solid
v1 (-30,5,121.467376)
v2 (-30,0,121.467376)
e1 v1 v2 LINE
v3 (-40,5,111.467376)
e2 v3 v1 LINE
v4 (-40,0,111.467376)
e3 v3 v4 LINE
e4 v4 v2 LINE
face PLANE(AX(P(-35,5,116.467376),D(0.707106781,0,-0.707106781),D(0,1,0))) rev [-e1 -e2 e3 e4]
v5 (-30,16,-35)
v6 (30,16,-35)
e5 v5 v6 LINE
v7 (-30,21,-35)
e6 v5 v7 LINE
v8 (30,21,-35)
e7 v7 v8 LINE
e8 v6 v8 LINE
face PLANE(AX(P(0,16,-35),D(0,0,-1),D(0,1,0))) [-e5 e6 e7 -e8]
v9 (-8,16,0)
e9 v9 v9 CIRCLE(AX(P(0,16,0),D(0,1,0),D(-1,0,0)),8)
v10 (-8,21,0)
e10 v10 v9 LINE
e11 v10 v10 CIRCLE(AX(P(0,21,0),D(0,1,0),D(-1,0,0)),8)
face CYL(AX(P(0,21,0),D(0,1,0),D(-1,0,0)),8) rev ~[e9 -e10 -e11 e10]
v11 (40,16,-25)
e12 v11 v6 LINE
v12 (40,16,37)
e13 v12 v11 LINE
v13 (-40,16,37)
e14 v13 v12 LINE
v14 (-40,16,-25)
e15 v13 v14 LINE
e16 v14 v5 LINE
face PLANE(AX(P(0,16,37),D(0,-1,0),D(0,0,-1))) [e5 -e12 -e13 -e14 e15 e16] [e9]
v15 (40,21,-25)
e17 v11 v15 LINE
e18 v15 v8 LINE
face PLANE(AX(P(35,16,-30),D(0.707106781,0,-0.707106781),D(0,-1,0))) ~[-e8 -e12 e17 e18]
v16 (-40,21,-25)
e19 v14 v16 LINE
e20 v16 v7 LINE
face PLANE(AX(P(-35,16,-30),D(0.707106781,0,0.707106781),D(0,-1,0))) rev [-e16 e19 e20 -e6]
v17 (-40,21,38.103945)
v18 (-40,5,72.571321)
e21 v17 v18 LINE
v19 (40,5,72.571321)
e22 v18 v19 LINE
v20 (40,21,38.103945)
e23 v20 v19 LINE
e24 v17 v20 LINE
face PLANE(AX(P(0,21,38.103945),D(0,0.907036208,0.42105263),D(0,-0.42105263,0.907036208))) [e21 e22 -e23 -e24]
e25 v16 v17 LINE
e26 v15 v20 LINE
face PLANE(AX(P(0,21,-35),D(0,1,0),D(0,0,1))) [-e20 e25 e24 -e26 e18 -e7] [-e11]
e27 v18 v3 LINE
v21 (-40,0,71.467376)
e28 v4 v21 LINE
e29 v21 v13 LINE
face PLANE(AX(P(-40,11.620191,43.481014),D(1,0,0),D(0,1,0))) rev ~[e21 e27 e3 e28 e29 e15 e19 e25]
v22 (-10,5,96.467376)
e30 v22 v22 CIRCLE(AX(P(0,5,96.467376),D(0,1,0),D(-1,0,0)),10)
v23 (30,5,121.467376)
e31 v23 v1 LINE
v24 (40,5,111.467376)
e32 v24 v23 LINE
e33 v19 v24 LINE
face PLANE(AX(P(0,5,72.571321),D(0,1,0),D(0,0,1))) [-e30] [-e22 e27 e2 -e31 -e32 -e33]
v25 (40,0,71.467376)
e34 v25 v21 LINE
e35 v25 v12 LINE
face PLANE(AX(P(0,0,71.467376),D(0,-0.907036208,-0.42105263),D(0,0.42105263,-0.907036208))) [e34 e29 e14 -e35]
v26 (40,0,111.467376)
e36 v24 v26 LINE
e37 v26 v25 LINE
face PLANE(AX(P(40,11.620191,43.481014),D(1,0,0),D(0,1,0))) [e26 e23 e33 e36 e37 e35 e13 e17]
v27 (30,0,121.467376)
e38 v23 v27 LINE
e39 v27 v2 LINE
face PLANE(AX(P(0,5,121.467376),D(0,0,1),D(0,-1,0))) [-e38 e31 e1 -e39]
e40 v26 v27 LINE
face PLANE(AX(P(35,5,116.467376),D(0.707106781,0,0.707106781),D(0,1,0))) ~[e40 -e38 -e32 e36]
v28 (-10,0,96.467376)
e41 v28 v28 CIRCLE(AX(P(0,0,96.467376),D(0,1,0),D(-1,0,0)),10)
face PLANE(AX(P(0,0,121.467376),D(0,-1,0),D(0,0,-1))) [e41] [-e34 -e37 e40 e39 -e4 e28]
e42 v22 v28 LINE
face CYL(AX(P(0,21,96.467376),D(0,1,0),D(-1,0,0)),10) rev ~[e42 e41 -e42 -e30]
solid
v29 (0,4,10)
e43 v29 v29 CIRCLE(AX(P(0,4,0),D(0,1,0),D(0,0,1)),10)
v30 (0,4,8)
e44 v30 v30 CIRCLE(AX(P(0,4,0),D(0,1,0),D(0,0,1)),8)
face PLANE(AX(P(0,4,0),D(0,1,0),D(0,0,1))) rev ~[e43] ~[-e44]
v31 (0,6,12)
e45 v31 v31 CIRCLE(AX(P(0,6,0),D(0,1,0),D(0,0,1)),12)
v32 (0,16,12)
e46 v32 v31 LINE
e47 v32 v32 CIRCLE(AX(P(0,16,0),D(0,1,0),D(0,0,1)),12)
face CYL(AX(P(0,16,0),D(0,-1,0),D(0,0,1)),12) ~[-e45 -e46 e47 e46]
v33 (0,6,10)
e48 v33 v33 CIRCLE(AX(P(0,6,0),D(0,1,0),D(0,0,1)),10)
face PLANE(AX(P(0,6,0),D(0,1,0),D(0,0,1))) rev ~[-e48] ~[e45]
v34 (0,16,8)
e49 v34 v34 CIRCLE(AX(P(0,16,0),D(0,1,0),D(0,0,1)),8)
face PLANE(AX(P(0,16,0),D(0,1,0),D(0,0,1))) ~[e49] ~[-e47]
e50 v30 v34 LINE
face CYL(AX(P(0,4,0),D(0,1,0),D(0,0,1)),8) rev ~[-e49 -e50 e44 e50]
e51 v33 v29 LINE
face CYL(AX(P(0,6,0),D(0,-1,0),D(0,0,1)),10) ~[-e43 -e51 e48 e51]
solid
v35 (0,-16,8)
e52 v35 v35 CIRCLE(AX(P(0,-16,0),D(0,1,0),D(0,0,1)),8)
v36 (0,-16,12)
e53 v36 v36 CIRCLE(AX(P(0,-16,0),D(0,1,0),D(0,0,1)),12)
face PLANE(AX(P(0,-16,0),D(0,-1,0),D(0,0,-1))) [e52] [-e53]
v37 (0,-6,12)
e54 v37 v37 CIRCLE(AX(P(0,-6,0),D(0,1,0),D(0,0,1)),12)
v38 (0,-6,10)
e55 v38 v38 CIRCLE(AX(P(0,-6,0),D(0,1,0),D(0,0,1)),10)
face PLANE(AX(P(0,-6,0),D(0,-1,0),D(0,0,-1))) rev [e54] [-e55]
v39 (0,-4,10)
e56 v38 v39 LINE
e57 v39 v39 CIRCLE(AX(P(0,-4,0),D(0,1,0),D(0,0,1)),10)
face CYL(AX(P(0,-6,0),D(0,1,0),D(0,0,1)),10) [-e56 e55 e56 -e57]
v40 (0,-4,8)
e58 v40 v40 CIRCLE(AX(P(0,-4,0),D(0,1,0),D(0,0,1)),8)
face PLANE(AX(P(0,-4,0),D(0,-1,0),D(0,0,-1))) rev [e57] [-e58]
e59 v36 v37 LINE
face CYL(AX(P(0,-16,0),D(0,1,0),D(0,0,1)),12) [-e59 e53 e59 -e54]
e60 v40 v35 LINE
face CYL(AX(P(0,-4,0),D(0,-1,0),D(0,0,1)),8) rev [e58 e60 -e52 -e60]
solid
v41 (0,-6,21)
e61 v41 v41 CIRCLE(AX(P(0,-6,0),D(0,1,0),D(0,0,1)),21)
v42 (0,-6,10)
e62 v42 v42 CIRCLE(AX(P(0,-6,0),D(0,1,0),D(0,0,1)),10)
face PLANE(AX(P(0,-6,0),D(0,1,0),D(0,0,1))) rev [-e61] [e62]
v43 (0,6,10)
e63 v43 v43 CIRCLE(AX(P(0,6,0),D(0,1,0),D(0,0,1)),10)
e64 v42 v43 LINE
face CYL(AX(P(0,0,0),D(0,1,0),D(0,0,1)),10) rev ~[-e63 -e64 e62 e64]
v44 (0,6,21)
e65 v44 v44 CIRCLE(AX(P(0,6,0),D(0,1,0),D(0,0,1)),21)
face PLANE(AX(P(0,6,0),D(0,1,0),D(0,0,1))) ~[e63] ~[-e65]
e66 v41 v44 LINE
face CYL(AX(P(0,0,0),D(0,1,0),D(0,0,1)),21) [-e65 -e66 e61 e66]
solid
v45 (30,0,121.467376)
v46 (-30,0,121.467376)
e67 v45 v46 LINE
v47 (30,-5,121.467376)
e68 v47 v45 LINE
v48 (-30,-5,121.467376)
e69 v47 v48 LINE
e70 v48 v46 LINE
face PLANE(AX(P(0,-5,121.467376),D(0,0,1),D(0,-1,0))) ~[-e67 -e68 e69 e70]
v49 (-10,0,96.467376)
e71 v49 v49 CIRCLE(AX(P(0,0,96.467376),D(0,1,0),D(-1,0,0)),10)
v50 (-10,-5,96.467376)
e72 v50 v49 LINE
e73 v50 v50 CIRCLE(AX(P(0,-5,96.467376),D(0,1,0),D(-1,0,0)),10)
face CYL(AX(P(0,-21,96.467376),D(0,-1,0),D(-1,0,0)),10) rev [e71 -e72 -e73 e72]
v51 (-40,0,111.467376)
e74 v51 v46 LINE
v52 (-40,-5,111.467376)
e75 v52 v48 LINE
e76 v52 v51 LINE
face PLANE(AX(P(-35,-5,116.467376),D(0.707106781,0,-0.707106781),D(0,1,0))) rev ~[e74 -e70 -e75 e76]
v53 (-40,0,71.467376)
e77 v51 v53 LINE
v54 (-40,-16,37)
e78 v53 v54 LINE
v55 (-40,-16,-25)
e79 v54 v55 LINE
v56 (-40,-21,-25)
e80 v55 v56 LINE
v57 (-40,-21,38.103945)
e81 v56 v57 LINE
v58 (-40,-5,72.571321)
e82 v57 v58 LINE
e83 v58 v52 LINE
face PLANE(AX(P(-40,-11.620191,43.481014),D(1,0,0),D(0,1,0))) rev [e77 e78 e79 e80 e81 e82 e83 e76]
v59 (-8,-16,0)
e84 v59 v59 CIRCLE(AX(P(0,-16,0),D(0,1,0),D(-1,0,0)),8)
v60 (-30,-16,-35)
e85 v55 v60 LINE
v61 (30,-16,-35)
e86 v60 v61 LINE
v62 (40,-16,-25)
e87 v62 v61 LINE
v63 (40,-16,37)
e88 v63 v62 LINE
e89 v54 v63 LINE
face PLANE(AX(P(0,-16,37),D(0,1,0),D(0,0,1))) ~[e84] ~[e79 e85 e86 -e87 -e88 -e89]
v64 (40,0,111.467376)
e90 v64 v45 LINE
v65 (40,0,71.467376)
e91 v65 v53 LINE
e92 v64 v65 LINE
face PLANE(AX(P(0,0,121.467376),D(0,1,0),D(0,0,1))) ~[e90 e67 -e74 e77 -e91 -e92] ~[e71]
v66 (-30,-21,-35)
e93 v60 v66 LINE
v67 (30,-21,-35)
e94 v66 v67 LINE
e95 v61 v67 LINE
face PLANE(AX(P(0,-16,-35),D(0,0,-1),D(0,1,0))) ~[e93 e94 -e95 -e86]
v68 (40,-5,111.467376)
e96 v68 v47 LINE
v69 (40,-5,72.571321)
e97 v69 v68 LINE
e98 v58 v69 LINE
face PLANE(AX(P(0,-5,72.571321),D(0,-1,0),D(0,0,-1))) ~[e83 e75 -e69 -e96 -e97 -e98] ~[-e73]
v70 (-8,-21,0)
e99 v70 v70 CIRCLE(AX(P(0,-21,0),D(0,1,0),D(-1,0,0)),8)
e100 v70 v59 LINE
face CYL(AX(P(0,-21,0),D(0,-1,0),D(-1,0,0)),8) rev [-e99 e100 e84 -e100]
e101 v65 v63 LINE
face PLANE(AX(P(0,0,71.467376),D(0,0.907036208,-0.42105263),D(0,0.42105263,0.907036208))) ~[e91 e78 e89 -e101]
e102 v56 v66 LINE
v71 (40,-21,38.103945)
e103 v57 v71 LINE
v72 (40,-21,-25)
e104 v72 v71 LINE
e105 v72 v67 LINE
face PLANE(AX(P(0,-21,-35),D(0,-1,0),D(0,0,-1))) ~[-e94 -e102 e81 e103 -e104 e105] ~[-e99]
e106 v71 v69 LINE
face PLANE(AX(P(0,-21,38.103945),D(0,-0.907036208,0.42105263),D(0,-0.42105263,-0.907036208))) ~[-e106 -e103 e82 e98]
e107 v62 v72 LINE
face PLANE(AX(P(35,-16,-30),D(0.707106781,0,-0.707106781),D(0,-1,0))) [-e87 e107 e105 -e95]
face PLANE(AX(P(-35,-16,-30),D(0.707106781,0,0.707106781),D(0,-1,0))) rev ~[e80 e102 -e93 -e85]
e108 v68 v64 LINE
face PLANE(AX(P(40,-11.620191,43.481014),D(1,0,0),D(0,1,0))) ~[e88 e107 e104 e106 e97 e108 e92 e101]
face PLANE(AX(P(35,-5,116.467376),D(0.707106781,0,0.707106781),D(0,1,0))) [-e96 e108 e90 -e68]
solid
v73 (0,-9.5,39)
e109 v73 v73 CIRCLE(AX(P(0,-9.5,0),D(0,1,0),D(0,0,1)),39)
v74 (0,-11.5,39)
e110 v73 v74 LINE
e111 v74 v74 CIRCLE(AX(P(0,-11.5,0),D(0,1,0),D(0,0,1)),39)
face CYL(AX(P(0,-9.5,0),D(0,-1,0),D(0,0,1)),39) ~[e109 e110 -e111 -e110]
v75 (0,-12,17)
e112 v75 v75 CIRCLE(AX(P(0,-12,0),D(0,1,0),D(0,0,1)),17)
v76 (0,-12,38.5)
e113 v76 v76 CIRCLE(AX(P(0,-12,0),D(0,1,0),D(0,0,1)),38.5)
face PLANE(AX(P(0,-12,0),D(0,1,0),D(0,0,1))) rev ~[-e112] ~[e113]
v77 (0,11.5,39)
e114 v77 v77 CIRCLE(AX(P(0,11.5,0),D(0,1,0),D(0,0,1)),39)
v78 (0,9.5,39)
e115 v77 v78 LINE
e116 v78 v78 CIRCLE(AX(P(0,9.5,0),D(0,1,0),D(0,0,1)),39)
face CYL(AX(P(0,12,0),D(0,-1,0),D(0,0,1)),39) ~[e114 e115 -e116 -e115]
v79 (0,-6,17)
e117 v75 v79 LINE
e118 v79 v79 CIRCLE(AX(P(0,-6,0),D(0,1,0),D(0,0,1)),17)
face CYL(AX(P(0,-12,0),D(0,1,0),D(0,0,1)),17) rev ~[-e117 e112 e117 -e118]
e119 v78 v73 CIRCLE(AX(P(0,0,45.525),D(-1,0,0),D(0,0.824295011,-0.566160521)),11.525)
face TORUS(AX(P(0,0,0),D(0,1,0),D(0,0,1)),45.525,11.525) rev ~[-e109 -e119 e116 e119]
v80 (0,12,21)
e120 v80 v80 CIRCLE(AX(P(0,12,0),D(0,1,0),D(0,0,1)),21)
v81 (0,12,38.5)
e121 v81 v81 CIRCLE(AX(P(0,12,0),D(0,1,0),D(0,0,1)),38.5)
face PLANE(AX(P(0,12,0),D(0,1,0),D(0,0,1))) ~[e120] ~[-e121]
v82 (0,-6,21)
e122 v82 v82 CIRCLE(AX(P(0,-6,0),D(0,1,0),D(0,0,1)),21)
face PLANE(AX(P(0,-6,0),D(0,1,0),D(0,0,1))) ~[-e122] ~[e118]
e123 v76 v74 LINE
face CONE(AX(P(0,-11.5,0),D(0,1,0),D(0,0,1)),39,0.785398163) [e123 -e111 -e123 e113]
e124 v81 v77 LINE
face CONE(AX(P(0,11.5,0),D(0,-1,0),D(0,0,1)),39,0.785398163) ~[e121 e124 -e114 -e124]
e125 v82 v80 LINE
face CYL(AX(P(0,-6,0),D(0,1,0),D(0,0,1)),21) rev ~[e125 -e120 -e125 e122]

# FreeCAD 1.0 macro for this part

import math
import FreeCAD as App
import Part
import Sketcher


def edges_at(feature, points):
    """Names of the edges that pass closest to the given points."""
    edges = feature.Shape.Edges
    near = lambda p: min(range(len(edges)), key=lambda i: edges[i].distToShape(Part.Vertex(*p))[0])
    return sorted({f"Edge{near(p) + 1}" for p in points})


def add_polygon(sketch, points):
    """Adds a closed chain of lines whose ends are joined by coincident constraints."""
    first, n = sketch.GeometryCount, len(points)
    for a, b in zip(points, points[1:] + points[:1]):
        sketch.addGeometry(Part.LineSegment(App.Vector(*a, 0), App.Vector(*b, 0)), False)
    for i in range(n):
        sketch.addConstraint(Sketcher.Constraint("Coincident", first + i, 2, first + (i + 1) % n, 1))

doc = App.newDocument("Part")
body = doc.addObject("PartDesign::Body", "Body")

# Sketch on YZ plane
sketch1 = doc.addObject("Sketcher::SketchObject", "Sketch")
body.addObject(sketch1)
sketch1.AttachmentSupport = (doc.YZ_Plane, [""])
sketch1.MapMode = "FlatFace"
sketch1.addGeometry(Part.LineSegment(App.Vector(-12, 39, 0), App.Vector(-12, 17, 0)), False)
sketch1.addGeometry(Part.LineSegment(App.Vector(-12, 17, 0), App.Vector(-6, 17, 0)), False)
sketch1.addGeometry(Part.LineSegment(App.Vector(-6, 17, 0), App.Vector(-6, 21, 0)), False)
sketch1.addGeometry(Part.LineSegment(App.Vector(-6, 21, 0), App.Vector(12, 21, 0)), False)
sketch1.addGeometry(Part.LineSegment(App.Vector(12, 21, 0), App.Vector(12, 39, 0)), False)
sketch1.addGeometry(Part.LineSegment(App.Vector(12, 39, 0), App.Vector(9.5, 39, 0)), False)
sketch1.addGeometry(Part.ArcOfCircle(Part.Circle(App.Vector(0, 45.5, 0), App.Vector(0, 0, 1), 11.5), math.radians(-146), math.radians(-34)), False)
sketch1.addGeometry(Part.LineSegment(App.Vector(-9.5, 39, 0), App.Vector(-12, 39, 0)), False)
sketch1.addConstraint(Sketcher.Constraint("Coincident", 0, 2, 1, 1))
sketch1.addConstraint(Sketcher.Constraint("Coincident", 1, 2, 2, 1))
sketch1.addConstraint(Sketcher.Constraint("Coincident", 2, 2, 3, 1))
sketch1.addConstraint(Sketcher.Constraint("Coincident", 3, 2, 4, 1))
sketch1.addConstraint(Sketcher.Constraint("Coincident", 4, 2, 5, 1))
sketch1.addConstraint(Sketcher.Constraint("Coincident", 5, 2, 6, 2))
sketch1.addConstraint(Sketcher.Constraint("Coincident", 6, 1, 7, 1))
sketch1.addConstraint(Sketcher.Constraint("Coincident", 7, 2, 0, 1))
sketch1.addConstraint(Sketcher.Constraint("Vertical", 0))
sketch1.addConstraint(Sketcher.Constraint("Horizontal", 1))
sketch1.addConstraint(Sketcher.Constraint("Vertical", 2))
sketch1.addConstraint(Sketcher.Constraint("Horizontal", 3))
sketch1.addConstraint(Sketcher.Constraint("Vertical", 4))
sketch1.addConstraint(Sketcher.Constraint("Horizontal", 5))
sketch1.addConstraint(Sketcher.Constraint("Horizontal", 7))
sketch1.addConstraint(Sketcher.Constraint("Symmetric", 5, 2, 6, 1, -2))
sketch1.addConstraint(Sketcher.Constraint("Equal", 5, 7))
sketch1.addConstraint(Sketcher.Constraint("Equal", 3, 4))
sketch1.addConstraint(Sketcher.Constraint("DistanceX", 1, 1, 1, 2, 6.0))
sketch1.addConstraint(Sketcher.Constraint("DistanceX", 3, 1, 3, 2, 18.0))
sketch1.addConstraint(Sketcher.Constraint("DistanceY", 0, 2, 0, 1, 22.0))
sketch1.addConstraint(Sketcher.Constraint("DistanceX", 5, 2, 5, 1, 2.5))
sketch1.addConstraint(Sketcher.Constraint("DistanceY", -1, 1, 0, 2, 17.0))
sketch1.addConstraint(Sketcher.Constraint("Radius", 6, 11.525))
revolution = doc.addObject("PartDesign::Revolution", "Revolution")
body.addObject(revolution)
revolution.Profile = sketch1
revolution.ReferenceAxis = (sketch1, ["H_Axis"])
revolution.Angle = 360
doc.recompute()

chamfer = doc.addObject("PartDesign::Chamfer", "Chamfer")
body.addObject(chamfer)
chamfer.Base = (revolution, edges_at(revolution, [(0, 12, -39), (0, -12, -39)]))
chamfer.Size = 0.5
body2 = doc.addObject("PartDesign::Body", "Body001")

# Sketch on YZ plane
sketch2 = doc.addObject("Sketcher::SketchObject", "Sketch001")
body2.addObject(sketch2)
sketch2.AttachmentSupport = (doc.getObject("YZ_Plane001"), [""])
sketch2.MapMode = "FlatFace"
add_polygon(sketch2, [(-6, 21), (-6, 10), (6, 10), (6, 21)])  # lines 0-3
sketch2.addConstraint(Sketcher.Constraint("Vertical", 0))
sketch2.addConstraint(Sketcher.Constraint("Horizontal", 1))
sketch2.addConstraint(Sketcher.Constraint("Vertical", 2))
sketch2.addConstraint(Sketcher.Constraint("Horizontal", 3))
sketch2.addConstraint(Sketcher.Constraint("DistanceX", 1, 1, 1, 2, 12.0))
sketch2.addConstraint(Sketcher.Constraint("DistanceY", 0, 2, 0, 1, 11.0))
sketch2.addConstraint(Sketcher.Constraint("DistanceX", 0, 2, -1, 1, 6.0))
sketch2.addConstraint(Sketcher.Constraint("DistanceY", -1, 1, 0, 2, 10.0))
revolution2 = doc.addObject("PartDesign::Revolution", "Revolution001")
body2.addObject(revolution2)
revolution2.Profile = sketch2
revolution2.ReferenceAxis = (sketch2, ["H_Axis"])
revolution2.Angle = 360
body3 = doc.addObject("PartDesign::Body", "Body002")

# Sketch on YZ plane
sketch3 = doc.addObject("Sketcher::SketchObject", "Sketch002")
body3.addObject(sketch3)
sketch3.AttachmentSupport = (doc.getObject("YZ_Plane002"), [""])
sketch3.MapMode = "FlatFace"
add_polygon(sketch3, [(6, 10), (4, 10), (4, 8), (16, 8), (16, 12), (6, 12)])  # lines 0-5
sketch3.addConstraint(Sketcher.Constraint("Horizontal", 0))
sketch3.addConstraint(Sketcher.Constraint("Vertical", 1))
sketch3.addConstraint(Sketcher.Constraint("Horizontal", 2))
sketch3.addConstraint(Sketcher.Constraint("Vertical", 3))
sketch3.addConstraint(Sketcher.Constraint("Horizontal", 4))
sketch3.addConstraint(Sketcher.Constraint("Vertical", 5))
sketch3.addConstraint(Sketcher.Constraint("Equal", 0, 1))
sketch3.addConstraint(Sketcher.Constraint("Equal", 1, 5))
sketch3.addConstraint(Sketcher.Constraint("DistanceX", 0, 2, 0, 1, 2.0))
sketch3.addConstraint(Sketcher.Constraint("DistanceX", 2, 1, 2, 2, 12.0))
sketch3.addConstraint(Sketcher.Constraint("DistanceX", -1, 1, 0, 2, 4.0))
sketch3.addConstraint(Sketcher.Constraint("DistanceY", -1, 1, 0, 2, 10.0))
revolution3 = doc.addObject("PartDesign::Revolution", "Revolution002")
body3.addObject(revolution3)
revolution3.Profile = sketch3
revolution3.ReferenceAxis = (sketch3, ["H_Axis"])
revolution3.Angle = 360
body4 = doc.addObject("PartDesign::Body", "Body003")
doc.recompute()

mirroring = doc.addObject("Part::Mirroring", "Mirroring")
mirroring.Source = body3
mirroring.Base = App.Vector(0, 0, 0)
mirroring.Normal = App.Vector(0, -1, 0)
body4.BaseFeature = mirroring
doc.recompute()
body5 = doc.addObject("PartDesign::Body", "Body004")

# Sketch on YZ plane
sketch4 = doc.addObject("Sketcher::SketchObject", "Sketch003")
body5.addObject(sketch4)
sketch4.AttachmentSupport = (doc.getObject("YZ_Plane004"), [""])
sketch4.MapMode = "FlatFace"
add_polygon(sketch4, [(0, 71), (16, 37), (16, -35), (21, -35), (21, 38), (5, 73), (5, 121), (0, 121)])  # lines 0-7
sketch4.addConstraint(Sketcher.Constraint("Vertical", 1))
sketch4.addConstraint(Sketcher.Constraint("Horizontal", 2))
sketch4.addConstraint(Sketcher.Constraint("Vertical", 3))
sketch4.addConstraint(Sketcher.Constraint("Vertical", 5))
sketch4.addConstraint(Sketcher.Constraint("Horizontal", 6))
sketch4.addConstraint(Sketcher.Constraint("Vertical", 7))
sketch4.addConstraint(Sketcher.Constraint("PointOnObject", 6, 2, -2))
sketch4.addConstraint(Sketcher.Constraint("Parallel", 0, 4))
sketch4.addConstraint(Sketcher.Constraint("Equal", 2, 6))
sketch4.addConstraint(Sketcher.Constraint("DistanceX", 2, 1, 2, 2, 5.0))
sketch4.addConstraint(Sketcher.Constraint("DistanceY", 1, 2, 1, 1, 72.0))
sketch4.addConstraint(Sketcher.Constraint("DistanceY", 7, 2, 7, 1, 50.0))
sketch4.addConstraint(Sketcher.Constraint("Distance", 0, 38.0))
sketch4.addConstraint(Sketcher.Constraint("DistanceX", -1, 1, 0, 2, 16.0))
sketch4.addConstraint(Sketcher.Constraint("DistanceY", -1, 1, 0, 2, 37.0))
sketch4.addConstraint(Sketcher.Constraint("DistanceY", 3, 1, 3, 2, 73.103945))
pad1 = doc.addObject("PartDesign::Pad", "Pad")
body5.addObject(pad1)
pad1.Profile = sketch4
pad1.Length = 80
pad1.Midplane = True

# Sketch on XZ plane
sketch5 = doc.addObject("Sketcher::SketchObject", "Sketch004")
body5.addObject(sketch5)
sketch5.AttachmentSupport = (doc.getObject("XZ_Plane004"), [""])
sketch5.MapMode = "FlatFace"
sketch5.AttachmentOffset = App.Placement(App.Vector(0, 0, -21), App.Rotation())
sketch5.addGeometry(Part.Circle(App.Vector(0, 0, 0), App.Vector(0, 0, 1), 8), False)
sketch5.addGeometry(Part.Circle(App.Vector(0, 96, 0), App.Vector(0, 0, 1), 10), False)
sketch5.addConstraint(Sketcher.Constraint("Coincident", 0, 3, -1, 1))
sketch5.addConstraint(Sketcher.Constraint("PointOnObject", 1, 3, -2))
sketch5.addConstraint(Sketcher.Constraint("Diameter", 0, 16.0))
sketch5.addConstraint(Sketcher.Constraint("Diameter", 1, 20.0))
sketch5.addConstraint(Sketcher.Constraint("DistanceY", -1, 1, 1, 3, 96.467376))
pocket1 = doc.addObject("PartDesign::Pocket", "Pocket")
body5.addObject(pocket1)
pocket1.Profile = sketch5
pocket1.Type = "ThroughAll"
pocket1.Reversed = True
doc.recompute()

chamfer2 = doc.addObject("PartDesign::Chamfer", "Chamfer001")
body5.addObject(chamfer2)
chamfer2.Base = (pocket1, edges_at(pocket1, [
    (40, 2.5, 121.467),
    (-40, 2.5, 121.467),
    (40, 18.5, -35),
    (-40, 18.5, -35),
]))
chamfer2.Size = 10
body6 = doc.addObject("PartDesign::Body", "Body005")
doc.recompute()

mirroring2 = doc.addObject("Part::Mirroring", "Mirroring001")
mirroring2.Source = body5
mirroring2.Base = App.Vector(0, 0, 0)
mirroring2.Normal = App.Vector(0, -1, 0)
body6.BaseFeature = mirroring2
doc.recompute()
mirroring.Visibility = False
mirroring2.Visibility = False

doc.recompute()
